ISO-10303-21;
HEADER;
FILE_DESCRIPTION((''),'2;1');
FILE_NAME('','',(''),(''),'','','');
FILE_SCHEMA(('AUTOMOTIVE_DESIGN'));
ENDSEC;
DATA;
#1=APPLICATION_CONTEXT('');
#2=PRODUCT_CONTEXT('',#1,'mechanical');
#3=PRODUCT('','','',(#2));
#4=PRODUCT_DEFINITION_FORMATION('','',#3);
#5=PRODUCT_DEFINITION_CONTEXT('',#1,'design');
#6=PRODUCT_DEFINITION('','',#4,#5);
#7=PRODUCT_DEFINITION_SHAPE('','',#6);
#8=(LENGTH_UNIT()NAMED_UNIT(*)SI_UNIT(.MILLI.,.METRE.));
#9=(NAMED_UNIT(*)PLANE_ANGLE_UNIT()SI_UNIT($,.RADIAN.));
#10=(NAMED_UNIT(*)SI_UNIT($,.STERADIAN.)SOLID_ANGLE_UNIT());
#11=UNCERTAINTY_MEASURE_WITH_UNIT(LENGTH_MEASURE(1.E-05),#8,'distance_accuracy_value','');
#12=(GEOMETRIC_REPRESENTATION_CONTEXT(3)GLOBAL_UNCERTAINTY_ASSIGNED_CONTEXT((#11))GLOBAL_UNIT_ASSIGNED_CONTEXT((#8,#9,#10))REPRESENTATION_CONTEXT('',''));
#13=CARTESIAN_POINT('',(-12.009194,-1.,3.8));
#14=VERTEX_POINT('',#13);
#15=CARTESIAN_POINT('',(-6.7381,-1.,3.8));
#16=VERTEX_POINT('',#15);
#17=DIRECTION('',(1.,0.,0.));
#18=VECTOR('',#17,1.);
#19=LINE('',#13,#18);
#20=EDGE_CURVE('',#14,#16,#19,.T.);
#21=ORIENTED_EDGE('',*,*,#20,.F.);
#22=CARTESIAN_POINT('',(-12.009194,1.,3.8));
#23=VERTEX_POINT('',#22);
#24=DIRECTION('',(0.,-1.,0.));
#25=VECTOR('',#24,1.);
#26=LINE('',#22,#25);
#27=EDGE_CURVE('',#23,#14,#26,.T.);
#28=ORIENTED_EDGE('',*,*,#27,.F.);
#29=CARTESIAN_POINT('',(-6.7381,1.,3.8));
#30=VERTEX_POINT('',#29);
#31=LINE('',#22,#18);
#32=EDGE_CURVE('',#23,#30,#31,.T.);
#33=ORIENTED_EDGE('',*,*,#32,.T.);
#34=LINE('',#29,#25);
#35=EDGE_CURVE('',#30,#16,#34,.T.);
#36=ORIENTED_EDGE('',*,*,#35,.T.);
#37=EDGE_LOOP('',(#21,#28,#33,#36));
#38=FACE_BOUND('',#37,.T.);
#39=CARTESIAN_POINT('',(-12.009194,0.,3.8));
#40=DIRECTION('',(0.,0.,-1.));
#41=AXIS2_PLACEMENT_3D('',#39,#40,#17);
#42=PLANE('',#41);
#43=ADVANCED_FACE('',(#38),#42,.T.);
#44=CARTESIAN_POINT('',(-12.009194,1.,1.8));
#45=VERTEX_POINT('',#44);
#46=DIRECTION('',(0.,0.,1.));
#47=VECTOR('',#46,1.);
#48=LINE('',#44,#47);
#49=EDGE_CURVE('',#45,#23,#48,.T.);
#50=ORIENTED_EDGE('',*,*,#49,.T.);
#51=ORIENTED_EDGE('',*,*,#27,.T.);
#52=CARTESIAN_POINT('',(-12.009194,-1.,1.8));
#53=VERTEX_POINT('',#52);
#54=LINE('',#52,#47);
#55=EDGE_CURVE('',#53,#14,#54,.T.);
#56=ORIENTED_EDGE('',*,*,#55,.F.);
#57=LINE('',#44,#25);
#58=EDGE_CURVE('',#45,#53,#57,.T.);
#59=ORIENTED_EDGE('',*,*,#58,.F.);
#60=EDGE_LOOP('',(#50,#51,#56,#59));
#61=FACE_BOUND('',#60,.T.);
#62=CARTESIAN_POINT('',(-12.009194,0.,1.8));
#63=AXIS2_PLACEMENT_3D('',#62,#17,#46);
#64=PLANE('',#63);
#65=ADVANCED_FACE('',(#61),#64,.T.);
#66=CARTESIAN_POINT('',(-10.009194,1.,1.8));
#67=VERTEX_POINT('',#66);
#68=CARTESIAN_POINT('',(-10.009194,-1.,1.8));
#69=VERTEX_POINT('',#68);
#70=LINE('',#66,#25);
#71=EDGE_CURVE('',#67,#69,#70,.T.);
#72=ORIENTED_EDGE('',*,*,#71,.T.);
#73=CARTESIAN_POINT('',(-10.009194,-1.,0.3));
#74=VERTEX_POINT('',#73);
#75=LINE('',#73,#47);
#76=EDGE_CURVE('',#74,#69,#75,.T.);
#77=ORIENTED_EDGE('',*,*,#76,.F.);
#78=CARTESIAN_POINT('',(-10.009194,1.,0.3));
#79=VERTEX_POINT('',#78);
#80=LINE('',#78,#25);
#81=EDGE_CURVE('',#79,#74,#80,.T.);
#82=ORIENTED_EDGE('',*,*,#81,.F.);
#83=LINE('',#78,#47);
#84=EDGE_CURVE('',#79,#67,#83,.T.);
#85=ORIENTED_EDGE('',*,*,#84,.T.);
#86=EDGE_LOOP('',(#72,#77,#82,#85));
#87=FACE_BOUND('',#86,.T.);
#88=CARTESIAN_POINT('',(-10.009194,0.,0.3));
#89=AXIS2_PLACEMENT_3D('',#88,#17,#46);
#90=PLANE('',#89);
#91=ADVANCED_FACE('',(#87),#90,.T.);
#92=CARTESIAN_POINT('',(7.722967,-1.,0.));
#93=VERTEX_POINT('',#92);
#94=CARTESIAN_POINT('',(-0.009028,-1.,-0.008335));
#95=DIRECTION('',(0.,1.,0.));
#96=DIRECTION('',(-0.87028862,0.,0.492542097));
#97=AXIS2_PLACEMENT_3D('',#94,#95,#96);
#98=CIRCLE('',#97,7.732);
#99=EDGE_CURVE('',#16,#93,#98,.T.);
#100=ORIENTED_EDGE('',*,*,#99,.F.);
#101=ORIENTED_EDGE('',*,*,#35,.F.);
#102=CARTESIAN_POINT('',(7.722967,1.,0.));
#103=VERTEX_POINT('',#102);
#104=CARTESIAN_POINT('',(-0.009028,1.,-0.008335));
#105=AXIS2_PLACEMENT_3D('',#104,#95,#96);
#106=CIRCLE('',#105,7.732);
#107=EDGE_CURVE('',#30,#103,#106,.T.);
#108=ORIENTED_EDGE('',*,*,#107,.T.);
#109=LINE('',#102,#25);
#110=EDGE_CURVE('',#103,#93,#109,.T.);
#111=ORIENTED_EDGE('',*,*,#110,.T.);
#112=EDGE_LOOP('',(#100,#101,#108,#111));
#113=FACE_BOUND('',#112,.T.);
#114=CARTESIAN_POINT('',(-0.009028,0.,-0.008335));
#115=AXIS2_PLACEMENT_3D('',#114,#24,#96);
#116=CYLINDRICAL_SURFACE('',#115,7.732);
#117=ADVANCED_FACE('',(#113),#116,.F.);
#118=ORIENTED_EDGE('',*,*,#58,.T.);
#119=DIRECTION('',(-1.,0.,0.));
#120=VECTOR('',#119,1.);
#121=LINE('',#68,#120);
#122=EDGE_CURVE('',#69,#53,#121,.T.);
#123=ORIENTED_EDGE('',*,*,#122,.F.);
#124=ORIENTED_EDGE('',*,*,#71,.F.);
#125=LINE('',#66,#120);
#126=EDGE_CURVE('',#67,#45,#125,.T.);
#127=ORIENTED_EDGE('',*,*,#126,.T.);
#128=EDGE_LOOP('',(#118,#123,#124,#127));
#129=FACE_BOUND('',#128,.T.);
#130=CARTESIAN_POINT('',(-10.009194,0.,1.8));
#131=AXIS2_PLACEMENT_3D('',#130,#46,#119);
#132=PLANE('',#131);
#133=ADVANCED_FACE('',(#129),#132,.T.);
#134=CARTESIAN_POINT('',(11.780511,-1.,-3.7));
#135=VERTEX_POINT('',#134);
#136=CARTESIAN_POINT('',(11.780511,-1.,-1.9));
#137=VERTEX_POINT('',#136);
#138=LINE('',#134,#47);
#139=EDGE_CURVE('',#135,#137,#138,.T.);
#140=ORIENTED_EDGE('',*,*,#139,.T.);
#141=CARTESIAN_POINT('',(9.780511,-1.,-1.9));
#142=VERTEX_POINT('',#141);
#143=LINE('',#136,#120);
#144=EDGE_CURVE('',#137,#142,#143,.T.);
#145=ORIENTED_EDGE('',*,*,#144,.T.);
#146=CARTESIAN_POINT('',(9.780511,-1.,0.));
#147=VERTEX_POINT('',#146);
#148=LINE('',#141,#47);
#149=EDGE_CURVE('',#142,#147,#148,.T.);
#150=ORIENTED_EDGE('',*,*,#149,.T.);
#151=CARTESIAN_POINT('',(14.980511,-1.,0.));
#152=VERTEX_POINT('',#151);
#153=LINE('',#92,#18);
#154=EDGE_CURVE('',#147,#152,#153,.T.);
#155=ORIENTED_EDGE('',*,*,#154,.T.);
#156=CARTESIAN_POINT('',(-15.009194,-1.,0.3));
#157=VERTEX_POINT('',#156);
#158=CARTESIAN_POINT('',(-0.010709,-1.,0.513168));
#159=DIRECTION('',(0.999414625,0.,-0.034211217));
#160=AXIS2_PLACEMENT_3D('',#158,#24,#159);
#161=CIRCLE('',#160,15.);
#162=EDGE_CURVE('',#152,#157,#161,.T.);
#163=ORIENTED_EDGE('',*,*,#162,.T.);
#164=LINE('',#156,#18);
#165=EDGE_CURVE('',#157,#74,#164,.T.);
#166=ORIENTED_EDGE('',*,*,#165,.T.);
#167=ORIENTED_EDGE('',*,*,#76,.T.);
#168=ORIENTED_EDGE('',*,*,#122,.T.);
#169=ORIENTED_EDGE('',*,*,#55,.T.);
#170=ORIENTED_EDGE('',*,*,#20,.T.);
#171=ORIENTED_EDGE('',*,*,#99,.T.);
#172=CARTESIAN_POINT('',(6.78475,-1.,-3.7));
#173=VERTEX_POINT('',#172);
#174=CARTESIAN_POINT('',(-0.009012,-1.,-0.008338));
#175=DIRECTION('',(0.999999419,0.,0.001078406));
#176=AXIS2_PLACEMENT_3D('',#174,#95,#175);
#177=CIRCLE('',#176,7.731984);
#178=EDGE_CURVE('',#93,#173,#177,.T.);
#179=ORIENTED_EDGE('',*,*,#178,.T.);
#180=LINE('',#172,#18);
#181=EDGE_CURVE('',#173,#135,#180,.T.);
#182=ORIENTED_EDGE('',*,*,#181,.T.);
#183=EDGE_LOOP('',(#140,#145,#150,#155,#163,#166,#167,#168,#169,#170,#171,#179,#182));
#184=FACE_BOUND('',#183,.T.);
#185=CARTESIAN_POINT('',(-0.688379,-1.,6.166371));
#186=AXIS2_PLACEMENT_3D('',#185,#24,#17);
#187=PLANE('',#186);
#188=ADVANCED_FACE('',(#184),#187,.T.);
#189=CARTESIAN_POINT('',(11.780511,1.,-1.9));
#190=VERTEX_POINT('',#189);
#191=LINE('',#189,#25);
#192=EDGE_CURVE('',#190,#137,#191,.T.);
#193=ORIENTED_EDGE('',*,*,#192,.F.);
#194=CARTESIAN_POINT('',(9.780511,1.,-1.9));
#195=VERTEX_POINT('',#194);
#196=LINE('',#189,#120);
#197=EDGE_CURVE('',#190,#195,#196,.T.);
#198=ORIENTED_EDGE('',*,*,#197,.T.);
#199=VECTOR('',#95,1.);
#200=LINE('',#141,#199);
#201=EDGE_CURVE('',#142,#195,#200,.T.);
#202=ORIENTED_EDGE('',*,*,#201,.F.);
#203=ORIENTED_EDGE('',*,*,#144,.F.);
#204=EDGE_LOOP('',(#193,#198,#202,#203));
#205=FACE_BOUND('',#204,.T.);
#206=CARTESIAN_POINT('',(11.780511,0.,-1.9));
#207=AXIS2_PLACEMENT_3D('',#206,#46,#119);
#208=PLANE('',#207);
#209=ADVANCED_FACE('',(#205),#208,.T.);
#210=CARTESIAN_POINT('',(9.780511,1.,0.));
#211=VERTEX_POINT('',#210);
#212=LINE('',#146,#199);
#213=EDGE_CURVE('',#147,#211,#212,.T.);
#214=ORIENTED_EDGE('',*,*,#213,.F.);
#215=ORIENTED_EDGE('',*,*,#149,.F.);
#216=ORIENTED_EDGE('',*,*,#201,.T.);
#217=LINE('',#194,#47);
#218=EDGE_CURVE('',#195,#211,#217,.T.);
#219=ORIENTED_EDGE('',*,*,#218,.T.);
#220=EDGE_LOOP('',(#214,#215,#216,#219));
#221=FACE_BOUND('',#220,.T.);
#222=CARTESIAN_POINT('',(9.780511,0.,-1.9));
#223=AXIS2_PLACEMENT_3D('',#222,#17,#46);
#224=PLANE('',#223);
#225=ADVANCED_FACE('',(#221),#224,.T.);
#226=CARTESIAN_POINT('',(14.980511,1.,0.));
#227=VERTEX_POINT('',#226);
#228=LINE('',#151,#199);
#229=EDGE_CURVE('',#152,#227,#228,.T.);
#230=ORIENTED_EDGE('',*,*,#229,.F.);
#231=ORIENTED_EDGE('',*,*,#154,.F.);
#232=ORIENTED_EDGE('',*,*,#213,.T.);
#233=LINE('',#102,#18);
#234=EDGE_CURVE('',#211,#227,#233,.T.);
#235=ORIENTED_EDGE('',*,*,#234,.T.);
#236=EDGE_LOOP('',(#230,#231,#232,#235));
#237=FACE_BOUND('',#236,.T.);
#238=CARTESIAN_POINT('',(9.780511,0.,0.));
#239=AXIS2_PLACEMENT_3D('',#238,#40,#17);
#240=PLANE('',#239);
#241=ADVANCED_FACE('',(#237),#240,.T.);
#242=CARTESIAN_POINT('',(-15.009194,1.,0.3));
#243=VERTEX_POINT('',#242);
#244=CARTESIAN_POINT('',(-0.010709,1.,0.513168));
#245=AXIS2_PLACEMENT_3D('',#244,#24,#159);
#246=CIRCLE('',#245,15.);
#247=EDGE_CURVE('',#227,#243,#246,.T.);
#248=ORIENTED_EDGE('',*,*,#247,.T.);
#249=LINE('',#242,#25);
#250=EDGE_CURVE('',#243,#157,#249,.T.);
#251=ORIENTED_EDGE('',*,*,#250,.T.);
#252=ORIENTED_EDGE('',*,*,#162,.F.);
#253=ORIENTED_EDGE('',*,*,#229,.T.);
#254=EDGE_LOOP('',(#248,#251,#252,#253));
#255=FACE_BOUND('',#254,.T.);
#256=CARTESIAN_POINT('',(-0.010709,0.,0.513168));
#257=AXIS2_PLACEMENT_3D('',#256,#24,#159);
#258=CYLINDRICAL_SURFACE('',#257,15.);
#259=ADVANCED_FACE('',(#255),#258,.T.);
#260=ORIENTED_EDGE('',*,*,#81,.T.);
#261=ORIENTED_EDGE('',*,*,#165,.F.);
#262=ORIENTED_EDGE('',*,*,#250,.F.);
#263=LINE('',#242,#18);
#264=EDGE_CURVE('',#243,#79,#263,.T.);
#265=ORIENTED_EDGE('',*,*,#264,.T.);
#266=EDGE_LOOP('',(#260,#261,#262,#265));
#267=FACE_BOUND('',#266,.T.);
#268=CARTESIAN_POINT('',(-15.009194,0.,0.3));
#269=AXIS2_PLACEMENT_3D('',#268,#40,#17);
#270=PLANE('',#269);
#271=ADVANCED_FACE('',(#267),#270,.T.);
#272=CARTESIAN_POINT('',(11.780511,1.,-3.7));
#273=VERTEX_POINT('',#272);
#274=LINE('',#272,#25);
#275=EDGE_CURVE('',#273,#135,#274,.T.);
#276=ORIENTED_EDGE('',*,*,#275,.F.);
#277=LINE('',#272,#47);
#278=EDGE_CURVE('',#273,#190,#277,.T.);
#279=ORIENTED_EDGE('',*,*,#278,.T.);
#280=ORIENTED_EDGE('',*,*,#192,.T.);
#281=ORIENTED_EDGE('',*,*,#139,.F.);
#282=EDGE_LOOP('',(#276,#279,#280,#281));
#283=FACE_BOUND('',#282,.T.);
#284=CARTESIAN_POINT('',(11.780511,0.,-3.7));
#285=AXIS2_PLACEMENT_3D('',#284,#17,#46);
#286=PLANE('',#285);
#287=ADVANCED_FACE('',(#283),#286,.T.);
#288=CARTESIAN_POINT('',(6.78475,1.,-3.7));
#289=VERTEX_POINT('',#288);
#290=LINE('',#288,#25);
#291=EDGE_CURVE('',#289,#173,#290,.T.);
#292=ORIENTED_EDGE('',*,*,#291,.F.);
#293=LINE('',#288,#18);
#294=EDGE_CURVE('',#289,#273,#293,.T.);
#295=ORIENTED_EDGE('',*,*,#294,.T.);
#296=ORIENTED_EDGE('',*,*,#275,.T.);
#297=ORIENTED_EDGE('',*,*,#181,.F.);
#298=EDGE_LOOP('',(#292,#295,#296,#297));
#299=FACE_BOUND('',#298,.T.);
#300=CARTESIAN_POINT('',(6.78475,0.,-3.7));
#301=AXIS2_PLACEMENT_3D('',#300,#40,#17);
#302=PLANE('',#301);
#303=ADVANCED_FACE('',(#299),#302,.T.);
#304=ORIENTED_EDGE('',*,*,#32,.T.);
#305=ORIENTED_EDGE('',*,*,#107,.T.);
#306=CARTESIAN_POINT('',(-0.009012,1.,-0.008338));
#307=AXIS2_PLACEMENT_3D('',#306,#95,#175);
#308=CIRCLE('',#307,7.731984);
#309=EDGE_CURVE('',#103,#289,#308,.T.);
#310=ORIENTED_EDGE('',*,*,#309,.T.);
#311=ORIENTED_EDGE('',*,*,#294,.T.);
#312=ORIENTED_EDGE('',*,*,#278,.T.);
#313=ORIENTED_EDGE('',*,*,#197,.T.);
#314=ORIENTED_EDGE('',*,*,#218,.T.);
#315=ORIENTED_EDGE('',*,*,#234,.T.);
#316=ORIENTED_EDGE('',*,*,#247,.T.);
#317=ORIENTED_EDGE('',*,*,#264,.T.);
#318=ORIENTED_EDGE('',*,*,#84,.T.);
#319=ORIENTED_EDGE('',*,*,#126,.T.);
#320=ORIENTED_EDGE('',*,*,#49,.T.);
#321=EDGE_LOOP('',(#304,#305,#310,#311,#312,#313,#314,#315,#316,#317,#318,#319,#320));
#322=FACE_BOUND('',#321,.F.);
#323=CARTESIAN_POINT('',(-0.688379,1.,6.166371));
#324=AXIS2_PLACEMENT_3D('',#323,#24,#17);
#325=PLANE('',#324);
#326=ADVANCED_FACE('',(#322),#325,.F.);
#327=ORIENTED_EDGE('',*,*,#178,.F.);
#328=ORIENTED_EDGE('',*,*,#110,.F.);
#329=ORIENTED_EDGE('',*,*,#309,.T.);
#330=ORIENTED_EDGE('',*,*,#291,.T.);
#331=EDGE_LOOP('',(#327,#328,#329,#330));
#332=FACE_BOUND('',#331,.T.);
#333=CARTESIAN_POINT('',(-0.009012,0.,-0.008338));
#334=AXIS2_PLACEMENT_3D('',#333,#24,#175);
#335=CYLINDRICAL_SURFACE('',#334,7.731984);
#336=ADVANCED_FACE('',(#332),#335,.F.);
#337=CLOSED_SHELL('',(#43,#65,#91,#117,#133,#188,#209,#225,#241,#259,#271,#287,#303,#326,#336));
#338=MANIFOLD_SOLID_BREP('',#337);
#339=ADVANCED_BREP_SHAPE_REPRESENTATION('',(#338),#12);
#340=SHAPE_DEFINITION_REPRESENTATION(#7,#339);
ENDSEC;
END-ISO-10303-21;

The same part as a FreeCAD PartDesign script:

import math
import FreeCAD as App
import Part
import Sketcher

V = App.Vector

doc = App.newDocument("Part")
params = doc.addObject("Spreadsheet::Sheet", "Params")
for row, (alias, value) in enumerate([
    ("sketch1_radius", "15 mm"),
    ("sketch1_width", "5 mm"),
    ("sketch1_width2", "2 mm"),
    ("sketch1_width3", "5.2 mm"),
    ("sketch1_height", "1.5 mm"),
    ("pad1_length", "2 mm"),
], start=1):
    params.set(f"A{row}", alias)
    params.set(f"B{row}", "=" + value)
    params.setAlias(f"B{row}", alias)

body = doc.addObject("PartDesign::Body", "Body")

sketch1 = body.newObject("Sketcher::SketchObject", "Sketch")
sketch1.AttachmentSupport = (doc.getObject("XZ_Plane"), [""])
sketch1.MapMode = "FlatFace"
sketch1.addGeometry([
    Part.ArcOfCircle(Part.Circle(V(0, 0.5, 0), V(0, 0, 1), 15), math.radians(-2), math.radians(181)),
    Part.LineSegment(V(-15, 0.3, 0), V(-10, 0.3, 0)),
    Part.LineSegment(V(-10, 0.3, 0), V(-10, 1.8, 0)),
    Part.LineSegment(V(-10, 1.8, 0), V(-12, 1.8, 0)),
    Part.LineSegment(V(-12, 1.8, 0), V(-12, 3.8, 0)),
    Part.LineSegment(V(-12, 3.8, 0), V(-6.7, 3.8, 0)),
    Part.ArcOfCircle(Part.Circle(V(0, 0, 0), V(0, 0, 1), 7.7), math.radians(0), math.radians(150)),
    Part.ArcOfCircle(Part.Circle(V(0, 0, 0), V(0, 0, 1), 7.7), math.radians(-29), math.radians(0)),
    Part.LineSegment(V(6.8, -3.7, 0), V(11.8, -3.7, 0)),
    Part.LineSegment(V(11.8, -3.7, 0), V(11.8, -1.9, 0)),
    Part.LineSegment(V(11.8, -1.9, 0), V(9.8, -1.9, 0)),
    Part.LineSegment(V(9.8, -1.9, 0), V(9.8, 0, 0)),
    Part.LineSegment(V(9.8, 0, 0), V(15, 0, 0)),
], False)
sketch1.addConstraint([
    Sketcher.Constraint("Coincident", 0, 2, 1, 1),
    Sketcher.Constraint("Coincident", 1, 2, 2, 1),
    Sketcher.Constraint("Coincident", 2, 2, 3, 1),
    Sketcher.Constraint("Coincident", 3, 2, 4, 1),
    Sketcher.Constraint("Coincident", 4, 2, 5, 1),
    Sketcher.Constraint("Coincident", 5, 2, 6, 2),
    Sketcher.Constraint("Tangent", 6, 1, 7, 2),
    Sketcher.Constraint("Coincident", 7, 1, 8, 1),
    Sketcher.Constraint("Coincident", 8, 2, 9, 1),
    Sketcher.Constraint("Coincident", 9, 2, 10, 1),
    Sketcher.Constraint("Coincident", 10, 2, 11, 1),
    Sketcher.Constraint("Coincident", 11, 2, 12, 1),
    Sketcher.Constraint("Coincident", 12, 2, 0, 1),
    Sketcher.Constraint("Horizontal", 1),
    Sketcher.Constraint("Vertical", 2),
    Sketcher.Constraint("Horizontal", 3),
    Sketcher.Constraint("Vertical", 4),
    Sketcher.Constraint("Horizontal", 5),
    Sketcher.Constraint("Horizontal", 8),
    Sketcher.Constraint("Vertical", 9),
    Sketcher.Constraint("Horizontal", 10),
    Sketcher.Constraint("Vertical", 11),
    Sketcher.Constraint("Horizontal", 12),
    Sketcher.Constraint("PointOnObject", 6, 1, -1),
    Sketcher.Constraint("PointOnObject", 11, 2, -1),
    Sketcher.Constraint("Equal", 3, 10),
    Sketcher.Constraint("Equal", 10, 4),
    Sketcher.Constraint("Radius", 0, 15.0),
    Sketcher.Constraint("DistanceX", 1, 1, 1, 2, 5.0),
    Sketcher.Constraint("DistanceX", 3, 2, 3, 1, 2.0),
    Sketcher.Constraint("DistanceX", 12, 1, 12, 2, 5.2),
    Sketcher.Constraint("DistanceY", 2, 1, 2, 2, 1.5),
    Sketcher.Constraint("DistanceY", 9, 1, 9, 2, 1.8),
    Sketcher.Constraint("DistanceY", 11, 1, 11, 2, 1.9),
    Sketcher.Constraint("Radius", 6, 7.732),
    Sketcher.Constraint("DistanceY", -1, 1, 0, 2, 0.3),
    Sketcher.Constraint("Radius", 7, 7.731984),
    Sketcher.Constraint("DistanceX", 8, 1, 8, 2, 4.995761),
    Sketcher.Constraint("DistanceX", 5, 2, -1, 1, 6.7381),
    Sketcher.Constraint("DistanceX", 5, 1, 5, 2, 5.271094),
    Sketcher.Constraint("DistanceX", 0, 3, -1, 1, 0.010709),
])
sketch1.setExpression("Constraints[27]", "Params.sketch1_radius")
sketch1.setExpression("Constraints[28]", "Params.sketch1_width")
sketch1.setExpression("Constraints[29]", "Params.sketch1_width2")
sketch1.setExpression("Constraints[30]", "Params.sketch1_width3")
sketch1.setExpression("Constraints[31]", "Params.sketch1_height")
pad1 = body.newObject("PartDesign::Pad", "Pad")
pad1.Profile = sketch1
pad1.setExpression("Length", "Params.pad1_length")
pad1.Midplane = True

doc.recompute()
